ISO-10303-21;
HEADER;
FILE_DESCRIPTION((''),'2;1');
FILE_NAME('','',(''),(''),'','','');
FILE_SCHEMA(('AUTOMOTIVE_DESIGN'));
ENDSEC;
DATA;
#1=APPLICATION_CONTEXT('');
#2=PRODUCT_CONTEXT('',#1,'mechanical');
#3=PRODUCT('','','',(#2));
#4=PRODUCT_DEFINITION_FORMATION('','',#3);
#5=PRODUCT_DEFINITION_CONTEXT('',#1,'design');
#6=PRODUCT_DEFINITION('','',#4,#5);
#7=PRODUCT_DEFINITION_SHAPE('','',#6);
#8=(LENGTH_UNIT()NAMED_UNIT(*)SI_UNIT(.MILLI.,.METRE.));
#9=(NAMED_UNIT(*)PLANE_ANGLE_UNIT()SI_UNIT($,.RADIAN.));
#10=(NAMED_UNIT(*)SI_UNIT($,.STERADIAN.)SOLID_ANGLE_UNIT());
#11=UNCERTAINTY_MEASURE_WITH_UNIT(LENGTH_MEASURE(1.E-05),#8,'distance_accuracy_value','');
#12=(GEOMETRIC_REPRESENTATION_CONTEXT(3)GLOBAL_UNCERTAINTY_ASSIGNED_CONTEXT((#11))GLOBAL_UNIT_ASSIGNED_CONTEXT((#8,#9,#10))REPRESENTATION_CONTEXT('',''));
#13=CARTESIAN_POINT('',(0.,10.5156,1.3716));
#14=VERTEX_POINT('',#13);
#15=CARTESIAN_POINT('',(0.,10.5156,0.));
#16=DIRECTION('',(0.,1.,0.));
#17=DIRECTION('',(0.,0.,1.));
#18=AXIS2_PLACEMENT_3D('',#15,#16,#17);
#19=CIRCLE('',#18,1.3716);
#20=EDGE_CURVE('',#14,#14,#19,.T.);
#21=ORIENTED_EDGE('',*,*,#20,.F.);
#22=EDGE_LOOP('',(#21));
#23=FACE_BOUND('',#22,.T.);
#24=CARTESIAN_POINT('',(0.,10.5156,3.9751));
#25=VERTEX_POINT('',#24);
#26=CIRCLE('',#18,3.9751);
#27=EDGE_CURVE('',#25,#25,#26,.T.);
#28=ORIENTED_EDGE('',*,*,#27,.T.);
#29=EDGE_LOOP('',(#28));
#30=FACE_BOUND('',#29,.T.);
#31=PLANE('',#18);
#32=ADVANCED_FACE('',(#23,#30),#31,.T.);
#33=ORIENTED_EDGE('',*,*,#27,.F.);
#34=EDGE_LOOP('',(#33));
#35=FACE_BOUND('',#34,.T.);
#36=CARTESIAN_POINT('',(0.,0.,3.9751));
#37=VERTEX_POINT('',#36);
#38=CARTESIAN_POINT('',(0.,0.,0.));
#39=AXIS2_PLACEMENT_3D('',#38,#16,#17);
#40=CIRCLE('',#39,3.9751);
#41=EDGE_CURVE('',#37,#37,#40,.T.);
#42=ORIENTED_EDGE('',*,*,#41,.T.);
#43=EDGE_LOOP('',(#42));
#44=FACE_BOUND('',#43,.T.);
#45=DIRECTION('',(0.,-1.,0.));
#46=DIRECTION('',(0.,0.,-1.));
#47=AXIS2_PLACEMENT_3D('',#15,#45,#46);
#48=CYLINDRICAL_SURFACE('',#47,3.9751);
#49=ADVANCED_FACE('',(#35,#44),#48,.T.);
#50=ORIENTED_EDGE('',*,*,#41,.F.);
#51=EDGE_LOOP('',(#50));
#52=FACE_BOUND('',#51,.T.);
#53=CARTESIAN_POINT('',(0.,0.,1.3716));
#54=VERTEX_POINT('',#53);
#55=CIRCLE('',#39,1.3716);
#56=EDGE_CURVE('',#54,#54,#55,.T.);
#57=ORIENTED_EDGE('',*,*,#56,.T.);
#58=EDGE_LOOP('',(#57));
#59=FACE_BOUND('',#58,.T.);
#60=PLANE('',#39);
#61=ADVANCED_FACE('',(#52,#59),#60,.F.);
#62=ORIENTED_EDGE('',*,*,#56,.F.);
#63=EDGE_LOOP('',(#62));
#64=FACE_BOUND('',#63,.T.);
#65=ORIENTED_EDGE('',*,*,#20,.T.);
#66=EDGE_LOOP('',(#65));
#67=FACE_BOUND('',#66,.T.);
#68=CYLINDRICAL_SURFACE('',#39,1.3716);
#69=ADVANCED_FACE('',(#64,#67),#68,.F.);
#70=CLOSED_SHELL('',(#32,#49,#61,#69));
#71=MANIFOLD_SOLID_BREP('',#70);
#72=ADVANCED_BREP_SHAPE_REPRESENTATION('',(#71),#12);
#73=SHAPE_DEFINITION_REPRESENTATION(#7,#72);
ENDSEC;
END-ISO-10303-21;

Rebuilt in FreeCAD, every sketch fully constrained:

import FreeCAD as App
import Part
import Sketcher

V = App.Vector
Q = App.Units.Quantity

doc = App.newDocument("Part")
params = doc.addObject("Spreadsheet::Sheet", "Params")
for row, (alias, value) in enumerate([
    ("sketch1_diameter", "0.313 in"),
    ("pad1_length", "0.414 in"),
    ("sketch2_diameter", "0.108 in"),
], start=1):
    params.set(f"A{row}", alias)
    params.set(f"B{row}", "=" + value)
    params.setAlias(f"B{row}", alias)

body = doc.addObject("PartDesign::Body", "Body")

# Sketch on XZ plane
sketch1 = doc.addObject("Sketcher::SketchObject", "Sketch")
body.addObject(sketch1)
sketch1.AttachmentSupport = (doc.XZ_Plane, [""])
sketch1.MapMode = "FlatFace"
sketch1.addGeometry(Part.Circle(V(0, 0, 0), V(0, 0, 1), 4), False)
sketch1.addConstraint([
    Sketcher.Constraint("Coincident", 0, 3, -1, 1),
    Sketcher.Constraint("Diameter", 0, Q("0.313 in")),
])
sketch1.setExpression("Constraints[1]", "Params.sketch1_diameter")
pad1 = doc.addObject("PartDesign::Pad", "Pad")
body.addObject(pad1)
pad1.Profile = sketch1
pad1.setExpression("Length", "Params.pad1_length")
pad1.Reversed = True

# Sketch on XZ plane
sketch2 = doc.addObject("Sketcher::SketchObject", "Sketch001")
body.addObject(sketch2)
sketch2.AttachmentSupport = (doc.XZ_Plane, [""])
sketch2.MapMode = "FlatFace"
sketch2.AttachmentOffset = App.Placement(V(0, 0, -0.414 * 25.4), App.Rotation())
sketch2.addGeometry(Part.Circle(V(0, 0, 0), V(0, 0, 1), 1.4), False)
sketch2.addConstraint([
    Sketcher.Constraint("Coincident", 0, 3, -1, 1),
    Sketcher.Constraint("Diameter", 0, Q("0.108 in")),
])
sketch2.setExpression("Constraints[1]", "Params.sketch2_diameter")
pocket1 = doc.addObject("PartDesign::Pocket", "Pocket")
body.addObject(pocket1)
pocket1.Profile = sketch2
pocket1.Type = "ThroughAll"
pocket1.Reversed = True

doc.recompute()
